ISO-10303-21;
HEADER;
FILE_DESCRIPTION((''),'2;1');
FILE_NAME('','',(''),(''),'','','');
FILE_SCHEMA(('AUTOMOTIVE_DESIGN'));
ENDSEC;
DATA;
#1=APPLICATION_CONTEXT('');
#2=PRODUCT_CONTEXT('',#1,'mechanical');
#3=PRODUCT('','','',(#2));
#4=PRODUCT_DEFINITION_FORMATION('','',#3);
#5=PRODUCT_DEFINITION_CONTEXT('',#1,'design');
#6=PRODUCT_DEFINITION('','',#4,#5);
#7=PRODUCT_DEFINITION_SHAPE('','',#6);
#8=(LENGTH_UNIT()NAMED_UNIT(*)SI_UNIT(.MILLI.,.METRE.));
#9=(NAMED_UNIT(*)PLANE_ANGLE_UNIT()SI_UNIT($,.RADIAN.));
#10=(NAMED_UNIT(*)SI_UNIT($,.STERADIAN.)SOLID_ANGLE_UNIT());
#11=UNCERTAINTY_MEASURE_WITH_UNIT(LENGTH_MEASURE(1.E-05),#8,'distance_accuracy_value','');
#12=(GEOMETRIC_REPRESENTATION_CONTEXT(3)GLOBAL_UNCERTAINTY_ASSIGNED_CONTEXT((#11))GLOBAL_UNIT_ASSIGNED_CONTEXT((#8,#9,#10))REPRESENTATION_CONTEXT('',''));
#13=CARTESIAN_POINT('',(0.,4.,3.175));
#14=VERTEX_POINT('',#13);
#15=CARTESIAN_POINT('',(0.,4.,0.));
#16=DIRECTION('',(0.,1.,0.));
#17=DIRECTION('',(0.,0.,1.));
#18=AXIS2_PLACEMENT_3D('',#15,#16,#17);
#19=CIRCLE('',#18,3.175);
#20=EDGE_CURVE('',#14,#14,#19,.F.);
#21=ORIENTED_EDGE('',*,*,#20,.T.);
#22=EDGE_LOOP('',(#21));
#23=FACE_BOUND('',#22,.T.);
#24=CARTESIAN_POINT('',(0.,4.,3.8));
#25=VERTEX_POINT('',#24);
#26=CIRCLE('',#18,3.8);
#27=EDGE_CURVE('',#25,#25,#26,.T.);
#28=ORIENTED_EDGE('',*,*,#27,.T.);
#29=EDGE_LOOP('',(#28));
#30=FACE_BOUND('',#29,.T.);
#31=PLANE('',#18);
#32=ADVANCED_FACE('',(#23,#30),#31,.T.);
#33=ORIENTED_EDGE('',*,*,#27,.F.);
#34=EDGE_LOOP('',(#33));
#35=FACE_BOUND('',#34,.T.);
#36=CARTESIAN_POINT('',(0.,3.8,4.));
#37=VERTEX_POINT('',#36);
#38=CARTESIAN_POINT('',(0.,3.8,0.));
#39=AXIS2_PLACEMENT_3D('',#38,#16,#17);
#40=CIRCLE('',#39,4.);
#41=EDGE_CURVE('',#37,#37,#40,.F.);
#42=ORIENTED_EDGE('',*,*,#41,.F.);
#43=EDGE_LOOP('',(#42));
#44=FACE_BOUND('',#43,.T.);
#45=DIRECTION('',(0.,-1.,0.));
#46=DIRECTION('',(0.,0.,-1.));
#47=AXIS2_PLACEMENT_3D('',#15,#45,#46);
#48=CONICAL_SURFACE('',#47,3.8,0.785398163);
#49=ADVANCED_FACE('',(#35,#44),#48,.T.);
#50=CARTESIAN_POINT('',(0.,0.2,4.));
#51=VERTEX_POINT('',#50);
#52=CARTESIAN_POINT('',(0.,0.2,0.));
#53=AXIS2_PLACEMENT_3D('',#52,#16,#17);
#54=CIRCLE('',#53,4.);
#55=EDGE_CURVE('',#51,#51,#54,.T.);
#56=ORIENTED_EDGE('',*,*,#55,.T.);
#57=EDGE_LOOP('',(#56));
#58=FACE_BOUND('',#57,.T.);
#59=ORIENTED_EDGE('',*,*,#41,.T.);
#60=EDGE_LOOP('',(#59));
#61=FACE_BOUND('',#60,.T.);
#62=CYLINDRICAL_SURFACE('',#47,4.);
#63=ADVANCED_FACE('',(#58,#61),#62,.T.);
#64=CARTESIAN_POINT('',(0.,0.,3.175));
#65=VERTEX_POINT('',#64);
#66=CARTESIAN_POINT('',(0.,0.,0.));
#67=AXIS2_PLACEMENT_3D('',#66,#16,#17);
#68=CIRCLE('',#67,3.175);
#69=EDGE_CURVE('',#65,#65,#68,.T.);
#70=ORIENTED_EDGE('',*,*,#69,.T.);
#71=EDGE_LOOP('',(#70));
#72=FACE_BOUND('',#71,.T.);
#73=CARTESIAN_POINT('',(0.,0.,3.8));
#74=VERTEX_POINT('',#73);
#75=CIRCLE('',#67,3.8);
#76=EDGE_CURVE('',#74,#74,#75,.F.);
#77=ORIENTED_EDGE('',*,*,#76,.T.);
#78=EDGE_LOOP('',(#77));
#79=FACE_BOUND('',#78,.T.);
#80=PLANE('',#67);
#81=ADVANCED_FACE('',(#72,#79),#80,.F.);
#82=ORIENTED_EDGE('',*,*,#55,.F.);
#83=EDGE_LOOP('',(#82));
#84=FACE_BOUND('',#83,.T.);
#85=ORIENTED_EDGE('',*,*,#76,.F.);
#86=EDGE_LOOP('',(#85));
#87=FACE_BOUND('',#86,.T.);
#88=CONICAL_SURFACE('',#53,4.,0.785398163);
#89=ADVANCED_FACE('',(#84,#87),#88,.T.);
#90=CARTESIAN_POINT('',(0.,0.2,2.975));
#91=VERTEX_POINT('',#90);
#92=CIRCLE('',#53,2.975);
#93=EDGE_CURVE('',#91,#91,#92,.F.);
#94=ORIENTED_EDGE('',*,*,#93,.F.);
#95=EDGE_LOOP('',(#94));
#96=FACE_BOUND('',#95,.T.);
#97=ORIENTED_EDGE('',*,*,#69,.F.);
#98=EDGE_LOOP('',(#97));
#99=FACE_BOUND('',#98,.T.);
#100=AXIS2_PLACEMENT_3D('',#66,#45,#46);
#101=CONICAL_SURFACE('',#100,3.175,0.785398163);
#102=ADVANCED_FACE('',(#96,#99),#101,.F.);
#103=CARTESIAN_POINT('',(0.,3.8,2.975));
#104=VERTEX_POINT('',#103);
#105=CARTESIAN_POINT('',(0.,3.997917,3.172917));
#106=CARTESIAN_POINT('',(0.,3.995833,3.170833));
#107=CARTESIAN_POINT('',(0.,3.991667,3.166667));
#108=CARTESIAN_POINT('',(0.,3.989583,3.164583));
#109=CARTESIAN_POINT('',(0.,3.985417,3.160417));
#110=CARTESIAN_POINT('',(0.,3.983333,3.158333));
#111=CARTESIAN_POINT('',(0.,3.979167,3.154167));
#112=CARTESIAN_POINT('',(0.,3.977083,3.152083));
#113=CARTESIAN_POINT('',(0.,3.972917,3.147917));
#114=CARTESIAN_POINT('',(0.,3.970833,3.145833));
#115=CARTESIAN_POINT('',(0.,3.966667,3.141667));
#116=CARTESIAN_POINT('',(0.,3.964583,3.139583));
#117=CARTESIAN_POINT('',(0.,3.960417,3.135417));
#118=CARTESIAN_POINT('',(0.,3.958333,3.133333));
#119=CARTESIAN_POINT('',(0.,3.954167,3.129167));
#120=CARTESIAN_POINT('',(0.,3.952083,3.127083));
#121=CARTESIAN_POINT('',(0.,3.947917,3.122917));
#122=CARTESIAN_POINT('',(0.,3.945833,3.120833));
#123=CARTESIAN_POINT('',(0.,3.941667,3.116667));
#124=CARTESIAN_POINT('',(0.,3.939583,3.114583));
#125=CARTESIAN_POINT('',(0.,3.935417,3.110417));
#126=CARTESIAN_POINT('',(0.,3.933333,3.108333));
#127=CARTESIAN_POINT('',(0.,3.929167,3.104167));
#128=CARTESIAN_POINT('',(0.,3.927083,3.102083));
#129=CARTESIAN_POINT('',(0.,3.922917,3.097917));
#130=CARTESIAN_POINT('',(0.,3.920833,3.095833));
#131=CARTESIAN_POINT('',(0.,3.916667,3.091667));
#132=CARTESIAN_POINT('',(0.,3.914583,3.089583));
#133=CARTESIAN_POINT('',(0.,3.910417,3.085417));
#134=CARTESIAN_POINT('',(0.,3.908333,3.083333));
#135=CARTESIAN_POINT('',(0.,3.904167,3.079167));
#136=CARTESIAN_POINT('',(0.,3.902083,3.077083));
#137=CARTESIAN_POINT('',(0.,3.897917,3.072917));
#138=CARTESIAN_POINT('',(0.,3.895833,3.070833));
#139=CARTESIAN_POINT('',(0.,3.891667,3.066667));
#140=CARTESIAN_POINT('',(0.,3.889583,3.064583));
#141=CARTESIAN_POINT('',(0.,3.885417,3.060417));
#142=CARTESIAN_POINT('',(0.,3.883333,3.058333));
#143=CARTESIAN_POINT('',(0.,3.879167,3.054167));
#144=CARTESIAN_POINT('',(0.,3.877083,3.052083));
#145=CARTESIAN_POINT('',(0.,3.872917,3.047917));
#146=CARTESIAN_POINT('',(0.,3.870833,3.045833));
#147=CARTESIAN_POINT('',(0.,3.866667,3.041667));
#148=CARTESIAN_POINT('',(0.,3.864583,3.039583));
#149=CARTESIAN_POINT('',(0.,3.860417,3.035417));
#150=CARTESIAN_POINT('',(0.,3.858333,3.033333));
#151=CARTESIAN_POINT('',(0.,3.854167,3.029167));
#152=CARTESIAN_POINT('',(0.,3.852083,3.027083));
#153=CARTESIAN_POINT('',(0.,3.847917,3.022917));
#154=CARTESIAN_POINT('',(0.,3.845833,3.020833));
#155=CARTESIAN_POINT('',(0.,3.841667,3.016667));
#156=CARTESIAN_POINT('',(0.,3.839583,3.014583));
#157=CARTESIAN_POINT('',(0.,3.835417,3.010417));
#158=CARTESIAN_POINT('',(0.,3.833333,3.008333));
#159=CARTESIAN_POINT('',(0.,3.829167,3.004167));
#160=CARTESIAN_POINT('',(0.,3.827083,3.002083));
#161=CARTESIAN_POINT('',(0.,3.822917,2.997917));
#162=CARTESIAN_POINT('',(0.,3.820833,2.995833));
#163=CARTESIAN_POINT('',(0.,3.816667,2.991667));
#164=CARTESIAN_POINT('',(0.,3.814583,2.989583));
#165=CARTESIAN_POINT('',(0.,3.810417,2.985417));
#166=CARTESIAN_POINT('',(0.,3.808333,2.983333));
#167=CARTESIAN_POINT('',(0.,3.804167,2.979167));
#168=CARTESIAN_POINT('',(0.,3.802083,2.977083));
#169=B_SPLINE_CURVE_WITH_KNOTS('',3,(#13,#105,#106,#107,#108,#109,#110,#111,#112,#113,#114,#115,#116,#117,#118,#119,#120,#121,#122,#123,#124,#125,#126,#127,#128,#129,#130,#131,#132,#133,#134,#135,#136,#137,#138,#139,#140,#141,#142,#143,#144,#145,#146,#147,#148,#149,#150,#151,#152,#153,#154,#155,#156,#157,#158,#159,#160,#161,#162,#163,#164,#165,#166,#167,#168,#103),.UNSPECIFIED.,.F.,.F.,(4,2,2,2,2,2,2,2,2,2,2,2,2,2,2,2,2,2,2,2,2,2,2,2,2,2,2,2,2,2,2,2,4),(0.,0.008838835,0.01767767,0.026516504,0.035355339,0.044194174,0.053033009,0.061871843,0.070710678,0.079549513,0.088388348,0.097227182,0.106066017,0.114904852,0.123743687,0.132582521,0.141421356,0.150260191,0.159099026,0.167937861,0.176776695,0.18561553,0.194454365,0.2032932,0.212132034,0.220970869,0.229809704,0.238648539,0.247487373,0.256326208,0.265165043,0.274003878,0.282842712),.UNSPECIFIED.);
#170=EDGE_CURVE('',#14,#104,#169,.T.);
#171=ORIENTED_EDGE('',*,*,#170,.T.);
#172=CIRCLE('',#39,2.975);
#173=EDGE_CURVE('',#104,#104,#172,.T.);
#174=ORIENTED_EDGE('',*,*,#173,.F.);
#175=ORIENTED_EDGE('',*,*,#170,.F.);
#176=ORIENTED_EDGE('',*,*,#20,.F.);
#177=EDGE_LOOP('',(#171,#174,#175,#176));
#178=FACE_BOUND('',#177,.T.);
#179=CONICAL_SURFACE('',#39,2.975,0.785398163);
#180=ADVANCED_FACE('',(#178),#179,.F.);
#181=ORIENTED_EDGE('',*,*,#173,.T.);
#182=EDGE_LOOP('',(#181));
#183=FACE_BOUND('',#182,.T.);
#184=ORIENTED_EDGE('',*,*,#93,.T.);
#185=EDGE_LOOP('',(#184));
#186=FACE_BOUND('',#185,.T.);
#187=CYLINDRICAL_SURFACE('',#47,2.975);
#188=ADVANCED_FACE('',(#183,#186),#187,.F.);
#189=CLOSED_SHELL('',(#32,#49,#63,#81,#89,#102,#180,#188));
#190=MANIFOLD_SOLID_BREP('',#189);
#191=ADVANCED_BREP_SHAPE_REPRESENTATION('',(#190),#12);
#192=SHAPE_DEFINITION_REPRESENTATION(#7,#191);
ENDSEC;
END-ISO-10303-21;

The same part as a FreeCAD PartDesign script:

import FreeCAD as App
import Part
import Sketcher

V = App.Vector
Q = App.Units.Quantity


def edges_at(feature, points):
    """Names of the edges that pass closest to the given points."""
    edges = feature.Shape.Edges
    near = lambda p: min(range(len(edges)), key=lambda i: edges[i].distToShape(Part.Vertex(*p))[0])
    return sorted({f"Edge{near(p) + 1}" for p in points})

doc = App.newDocument("Part")
body = doc.addObject("PartDesign::Body", "Body")

# Sketch on XZ plane
sketch1 = body.newObject("Sketcher::SketchObject", "Sketch")
sketch1.AttachmentSupport = (doc.getObject("XZ_Plane"), [""])
sketch1.MapMode = "FlatFace"
sketch1.addGeometry(Part.Circle(V(0, 0, 0), V(0, 0, 1), 4), False)
sketch1.addGeometry(Part.Circle(V(0, 0, 0), V(0, 0, 1), 3), False)
sketch1.addConstraint(Sketcher.Constraint("Coincident", 0, 3, -1, 1))
sketch1.addConstraint(Sketcher.Constraint("Coincident", 1, 3, -1, 1))
sketch1.addConstraint(Sketcher.Constraint("Diameter", 0, Q("8 mm")))
sketch1.addConstraint(Sketcher.Constraint("Diameter", 1, Q("5.95 mm")))
pad1 = body.newObject("PartDesign::Pad", "Pad")
pad1.Profile = sketch1
pad1.Length = 4
pad1.Reversed = True
doc.recompute()

chamfer = body.newObject("PartDesign::Chamfer", "Chamfer")
chamfer.Base = (pad1, edges_at(pad1, [
    (0, 0, -4),
    (0, 4, -4),
    (0, 0, -2.975),
    (0, 4, -2.975),
]))
chamfer.Size = 0.2

doc.recompute()
